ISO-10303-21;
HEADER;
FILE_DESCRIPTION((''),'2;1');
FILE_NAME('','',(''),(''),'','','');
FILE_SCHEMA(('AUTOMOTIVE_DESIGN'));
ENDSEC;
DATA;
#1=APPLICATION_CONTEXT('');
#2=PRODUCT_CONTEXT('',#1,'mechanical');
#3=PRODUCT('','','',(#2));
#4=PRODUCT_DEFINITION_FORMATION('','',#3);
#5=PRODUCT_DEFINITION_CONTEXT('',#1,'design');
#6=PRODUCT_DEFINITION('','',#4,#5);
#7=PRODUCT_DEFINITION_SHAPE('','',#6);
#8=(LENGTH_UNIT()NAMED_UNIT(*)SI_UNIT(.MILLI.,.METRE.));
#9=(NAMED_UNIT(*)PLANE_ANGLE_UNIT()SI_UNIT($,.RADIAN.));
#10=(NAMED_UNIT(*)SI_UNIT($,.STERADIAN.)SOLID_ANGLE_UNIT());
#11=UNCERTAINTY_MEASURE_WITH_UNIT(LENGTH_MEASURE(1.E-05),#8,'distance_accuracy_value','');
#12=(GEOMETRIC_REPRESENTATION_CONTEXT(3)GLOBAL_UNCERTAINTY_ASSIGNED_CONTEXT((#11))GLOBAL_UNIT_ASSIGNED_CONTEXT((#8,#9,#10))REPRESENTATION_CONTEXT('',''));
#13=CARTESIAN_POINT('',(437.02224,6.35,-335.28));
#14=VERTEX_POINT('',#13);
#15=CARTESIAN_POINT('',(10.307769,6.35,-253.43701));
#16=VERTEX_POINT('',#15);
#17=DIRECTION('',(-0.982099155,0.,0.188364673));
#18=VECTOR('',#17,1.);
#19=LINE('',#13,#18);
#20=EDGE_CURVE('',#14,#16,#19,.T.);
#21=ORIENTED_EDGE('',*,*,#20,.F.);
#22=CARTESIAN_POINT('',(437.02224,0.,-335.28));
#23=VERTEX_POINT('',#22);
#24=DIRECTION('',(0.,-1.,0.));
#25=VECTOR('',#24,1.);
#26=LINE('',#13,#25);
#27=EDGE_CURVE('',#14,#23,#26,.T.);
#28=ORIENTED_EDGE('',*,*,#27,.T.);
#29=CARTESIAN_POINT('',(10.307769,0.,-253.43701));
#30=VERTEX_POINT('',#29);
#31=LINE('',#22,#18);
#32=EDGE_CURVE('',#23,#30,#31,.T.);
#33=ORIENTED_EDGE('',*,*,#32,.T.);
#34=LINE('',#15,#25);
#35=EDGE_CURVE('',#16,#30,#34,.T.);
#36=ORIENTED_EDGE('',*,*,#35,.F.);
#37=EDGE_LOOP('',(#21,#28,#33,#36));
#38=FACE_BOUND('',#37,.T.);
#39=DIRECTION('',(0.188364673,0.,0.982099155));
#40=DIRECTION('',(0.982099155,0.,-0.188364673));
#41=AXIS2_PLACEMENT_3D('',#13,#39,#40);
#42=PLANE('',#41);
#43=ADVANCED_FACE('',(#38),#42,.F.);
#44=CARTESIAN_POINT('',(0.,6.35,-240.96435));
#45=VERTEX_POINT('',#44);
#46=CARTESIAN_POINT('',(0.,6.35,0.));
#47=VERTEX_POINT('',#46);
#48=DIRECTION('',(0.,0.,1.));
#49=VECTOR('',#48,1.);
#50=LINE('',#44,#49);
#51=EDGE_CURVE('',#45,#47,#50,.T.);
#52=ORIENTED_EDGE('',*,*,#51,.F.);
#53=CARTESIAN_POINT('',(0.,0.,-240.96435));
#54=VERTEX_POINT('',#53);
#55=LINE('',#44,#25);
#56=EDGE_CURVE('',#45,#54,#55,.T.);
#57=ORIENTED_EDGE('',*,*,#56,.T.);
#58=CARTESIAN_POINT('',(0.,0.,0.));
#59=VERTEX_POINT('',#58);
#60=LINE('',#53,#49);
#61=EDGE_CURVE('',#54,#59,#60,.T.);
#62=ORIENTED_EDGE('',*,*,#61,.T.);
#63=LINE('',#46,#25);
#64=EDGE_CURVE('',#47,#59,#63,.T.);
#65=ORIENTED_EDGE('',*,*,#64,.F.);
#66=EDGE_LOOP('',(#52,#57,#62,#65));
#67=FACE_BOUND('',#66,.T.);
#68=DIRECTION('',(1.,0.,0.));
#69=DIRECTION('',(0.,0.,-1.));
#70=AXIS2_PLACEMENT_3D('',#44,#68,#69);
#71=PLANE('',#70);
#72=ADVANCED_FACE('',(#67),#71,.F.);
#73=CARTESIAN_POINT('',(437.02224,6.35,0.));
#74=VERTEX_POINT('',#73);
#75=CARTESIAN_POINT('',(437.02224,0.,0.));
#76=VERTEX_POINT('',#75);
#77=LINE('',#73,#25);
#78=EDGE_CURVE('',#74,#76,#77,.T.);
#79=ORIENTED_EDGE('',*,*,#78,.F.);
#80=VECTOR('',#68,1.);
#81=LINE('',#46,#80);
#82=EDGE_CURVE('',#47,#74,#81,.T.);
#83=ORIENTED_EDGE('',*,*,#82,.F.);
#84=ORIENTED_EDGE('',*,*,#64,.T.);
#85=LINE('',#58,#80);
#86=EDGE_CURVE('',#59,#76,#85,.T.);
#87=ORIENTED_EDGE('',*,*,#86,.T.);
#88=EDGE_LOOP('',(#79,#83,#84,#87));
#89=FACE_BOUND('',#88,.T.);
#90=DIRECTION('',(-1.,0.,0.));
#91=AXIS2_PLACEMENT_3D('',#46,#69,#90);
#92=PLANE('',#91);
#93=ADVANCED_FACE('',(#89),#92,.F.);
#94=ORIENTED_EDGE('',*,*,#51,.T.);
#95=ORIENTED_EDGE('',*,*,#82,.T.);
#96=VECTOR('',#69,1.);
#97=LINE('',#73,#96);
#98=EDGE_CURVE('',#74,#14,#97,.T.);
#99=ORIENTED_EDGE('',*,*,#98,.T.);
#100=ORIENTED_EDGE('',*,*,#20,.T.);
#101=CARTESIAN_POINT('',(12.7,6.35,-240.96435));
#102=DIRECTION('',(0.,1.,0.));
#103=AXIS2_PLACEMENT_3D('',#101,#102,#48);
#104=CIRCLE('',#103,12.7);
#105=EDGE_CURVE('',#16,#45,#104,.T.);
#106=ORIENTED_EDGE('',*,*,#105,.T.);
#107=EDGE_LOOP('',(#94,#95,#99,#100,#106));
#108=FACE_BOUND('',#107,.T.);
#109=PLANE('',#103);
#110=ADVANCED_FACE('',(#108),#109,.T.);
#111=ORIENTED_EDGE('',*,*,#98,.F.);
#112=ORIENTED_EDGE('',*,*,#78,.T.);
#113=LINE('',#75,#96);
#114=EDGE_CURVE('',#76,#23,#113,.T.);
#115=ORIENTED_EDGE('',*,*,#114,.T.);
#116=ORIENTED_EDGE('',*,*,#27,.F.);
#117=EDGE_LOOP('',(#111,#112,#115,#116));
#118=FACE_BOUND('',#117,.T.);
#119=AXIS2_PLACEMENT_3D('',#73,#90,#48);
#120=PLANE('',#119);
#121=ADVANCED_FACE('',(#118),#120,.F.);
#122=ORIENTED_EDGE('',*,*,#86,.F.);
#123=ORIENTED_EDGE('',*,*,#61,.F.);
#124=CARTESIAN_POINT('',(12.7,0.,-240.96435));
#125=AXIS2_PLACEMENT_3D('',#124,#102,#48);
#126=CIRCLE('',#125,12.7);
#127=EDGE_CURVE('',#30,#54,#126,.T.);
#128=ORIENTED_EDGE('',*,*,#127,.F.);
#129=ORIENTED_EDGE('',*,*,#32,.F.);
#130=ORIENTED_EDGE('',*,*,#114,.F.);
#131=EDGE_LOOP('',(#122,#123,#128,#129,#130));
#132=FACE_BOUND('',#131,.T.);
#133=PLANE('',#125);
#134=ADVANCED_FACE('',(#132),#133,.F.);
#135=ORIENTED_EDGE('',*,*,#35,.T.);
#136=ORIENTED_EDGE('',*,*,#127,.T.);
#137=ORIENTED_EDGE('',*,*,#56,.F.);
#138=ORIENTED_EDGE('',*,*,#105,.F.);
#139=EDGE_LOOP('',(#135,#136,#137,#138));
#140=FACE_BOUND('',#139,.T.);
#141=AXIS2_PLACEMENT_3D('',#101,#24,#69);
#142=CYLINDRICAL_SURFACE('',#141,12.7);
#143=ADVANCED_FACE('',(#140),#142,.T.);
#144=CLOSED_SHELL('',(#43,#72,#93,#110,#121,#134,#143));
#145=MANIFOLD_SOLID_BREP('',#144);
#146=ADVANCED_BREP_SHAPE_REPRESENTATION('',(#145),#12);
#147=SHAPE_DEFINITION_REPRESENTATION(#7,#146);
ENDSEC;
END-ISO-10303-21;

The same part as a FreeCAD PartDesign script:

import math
import FreeCAD as App
import Part
import Sketcher
Q = App.Units.Quantity

doc = App.newDocument("Part")
body = doc.addObject("PartDesign::Body", "Body")

# Sketch on XZ plane
sketch1 = body.newObject("Sketcher::SketchObject", "Sketch")
sketch1.AttachmentSupport = (doc.getObject("XZ_Plane"), [""])
sketch1.MapMode = "FlatFace"
sketch1.addGeometry([
    Part.LineSegment(App.Vector(0, 0, 0), App.Vector(437.02224, 0, 0)),  # 0
    Part.LineSegment(App.Vector(437.02224, 0, 0), App.Vector(437.02224, -335.28, 0)),  # 1
    Part.LineSegment(App.Vector(437.02224, -335.28, 0), App.Vector(10.307769, -253.43701, 0)),  # 2
    Part.ArcOfCircle(Part.Circle(App.Vector(12.7, -240.96435, 0), App.Vector(0, 0, 1), 12.7), math.radians(-180), math.radians(-100.857364)),  # 3
    Part.LineSegment(App.Vector(0, -240.96435, 0), App.Vector(0, 0, 0)),  # 4
], False)
sketch1.addConstraint([
    Sketcher.Constraint("Coincident", 0, 2, 1, 1),
    Sketcher.Constraint("Coincident", 1, 2, 2, 1),
    Sketcher.Constraint("Tangent", 2, 2, 3, 2),
    Sketcher.Constraint("Tangent", 3, 1, 4, 1),
    Sketcher.Constraint("Coincident", 4, 2, 0, 1),
    Sketcher.Constraint("Horizontal", 0),
    Sketcher.Constraint("Vertical", 1),
    Sketcher.Constraint("Vertical", 4),
    Sketcher.Constraint("Coincident", 4, 2, -1, 1),
    Sketcher.Constraint("Radius", 3, Q("0.5 in")),
    Sketcher.Constraint("DistanceY", 1, 2, 1, 1, Q("13.2 in")),
    Sketcher.Constraint("DistanceX", 0, 1, 0, 2, Q("17.2056 in")),
    Sketcher.Constraint("DistanceY", 4, 1, 4, 2, 240.96435),
])
pad1 = body.newObject("PartDesign::Pad", "Pad")
pad1.Profile = sketch1
pad1.Length = Q("0.25 in")
pad1.Reversed = True

doc.recompute()
